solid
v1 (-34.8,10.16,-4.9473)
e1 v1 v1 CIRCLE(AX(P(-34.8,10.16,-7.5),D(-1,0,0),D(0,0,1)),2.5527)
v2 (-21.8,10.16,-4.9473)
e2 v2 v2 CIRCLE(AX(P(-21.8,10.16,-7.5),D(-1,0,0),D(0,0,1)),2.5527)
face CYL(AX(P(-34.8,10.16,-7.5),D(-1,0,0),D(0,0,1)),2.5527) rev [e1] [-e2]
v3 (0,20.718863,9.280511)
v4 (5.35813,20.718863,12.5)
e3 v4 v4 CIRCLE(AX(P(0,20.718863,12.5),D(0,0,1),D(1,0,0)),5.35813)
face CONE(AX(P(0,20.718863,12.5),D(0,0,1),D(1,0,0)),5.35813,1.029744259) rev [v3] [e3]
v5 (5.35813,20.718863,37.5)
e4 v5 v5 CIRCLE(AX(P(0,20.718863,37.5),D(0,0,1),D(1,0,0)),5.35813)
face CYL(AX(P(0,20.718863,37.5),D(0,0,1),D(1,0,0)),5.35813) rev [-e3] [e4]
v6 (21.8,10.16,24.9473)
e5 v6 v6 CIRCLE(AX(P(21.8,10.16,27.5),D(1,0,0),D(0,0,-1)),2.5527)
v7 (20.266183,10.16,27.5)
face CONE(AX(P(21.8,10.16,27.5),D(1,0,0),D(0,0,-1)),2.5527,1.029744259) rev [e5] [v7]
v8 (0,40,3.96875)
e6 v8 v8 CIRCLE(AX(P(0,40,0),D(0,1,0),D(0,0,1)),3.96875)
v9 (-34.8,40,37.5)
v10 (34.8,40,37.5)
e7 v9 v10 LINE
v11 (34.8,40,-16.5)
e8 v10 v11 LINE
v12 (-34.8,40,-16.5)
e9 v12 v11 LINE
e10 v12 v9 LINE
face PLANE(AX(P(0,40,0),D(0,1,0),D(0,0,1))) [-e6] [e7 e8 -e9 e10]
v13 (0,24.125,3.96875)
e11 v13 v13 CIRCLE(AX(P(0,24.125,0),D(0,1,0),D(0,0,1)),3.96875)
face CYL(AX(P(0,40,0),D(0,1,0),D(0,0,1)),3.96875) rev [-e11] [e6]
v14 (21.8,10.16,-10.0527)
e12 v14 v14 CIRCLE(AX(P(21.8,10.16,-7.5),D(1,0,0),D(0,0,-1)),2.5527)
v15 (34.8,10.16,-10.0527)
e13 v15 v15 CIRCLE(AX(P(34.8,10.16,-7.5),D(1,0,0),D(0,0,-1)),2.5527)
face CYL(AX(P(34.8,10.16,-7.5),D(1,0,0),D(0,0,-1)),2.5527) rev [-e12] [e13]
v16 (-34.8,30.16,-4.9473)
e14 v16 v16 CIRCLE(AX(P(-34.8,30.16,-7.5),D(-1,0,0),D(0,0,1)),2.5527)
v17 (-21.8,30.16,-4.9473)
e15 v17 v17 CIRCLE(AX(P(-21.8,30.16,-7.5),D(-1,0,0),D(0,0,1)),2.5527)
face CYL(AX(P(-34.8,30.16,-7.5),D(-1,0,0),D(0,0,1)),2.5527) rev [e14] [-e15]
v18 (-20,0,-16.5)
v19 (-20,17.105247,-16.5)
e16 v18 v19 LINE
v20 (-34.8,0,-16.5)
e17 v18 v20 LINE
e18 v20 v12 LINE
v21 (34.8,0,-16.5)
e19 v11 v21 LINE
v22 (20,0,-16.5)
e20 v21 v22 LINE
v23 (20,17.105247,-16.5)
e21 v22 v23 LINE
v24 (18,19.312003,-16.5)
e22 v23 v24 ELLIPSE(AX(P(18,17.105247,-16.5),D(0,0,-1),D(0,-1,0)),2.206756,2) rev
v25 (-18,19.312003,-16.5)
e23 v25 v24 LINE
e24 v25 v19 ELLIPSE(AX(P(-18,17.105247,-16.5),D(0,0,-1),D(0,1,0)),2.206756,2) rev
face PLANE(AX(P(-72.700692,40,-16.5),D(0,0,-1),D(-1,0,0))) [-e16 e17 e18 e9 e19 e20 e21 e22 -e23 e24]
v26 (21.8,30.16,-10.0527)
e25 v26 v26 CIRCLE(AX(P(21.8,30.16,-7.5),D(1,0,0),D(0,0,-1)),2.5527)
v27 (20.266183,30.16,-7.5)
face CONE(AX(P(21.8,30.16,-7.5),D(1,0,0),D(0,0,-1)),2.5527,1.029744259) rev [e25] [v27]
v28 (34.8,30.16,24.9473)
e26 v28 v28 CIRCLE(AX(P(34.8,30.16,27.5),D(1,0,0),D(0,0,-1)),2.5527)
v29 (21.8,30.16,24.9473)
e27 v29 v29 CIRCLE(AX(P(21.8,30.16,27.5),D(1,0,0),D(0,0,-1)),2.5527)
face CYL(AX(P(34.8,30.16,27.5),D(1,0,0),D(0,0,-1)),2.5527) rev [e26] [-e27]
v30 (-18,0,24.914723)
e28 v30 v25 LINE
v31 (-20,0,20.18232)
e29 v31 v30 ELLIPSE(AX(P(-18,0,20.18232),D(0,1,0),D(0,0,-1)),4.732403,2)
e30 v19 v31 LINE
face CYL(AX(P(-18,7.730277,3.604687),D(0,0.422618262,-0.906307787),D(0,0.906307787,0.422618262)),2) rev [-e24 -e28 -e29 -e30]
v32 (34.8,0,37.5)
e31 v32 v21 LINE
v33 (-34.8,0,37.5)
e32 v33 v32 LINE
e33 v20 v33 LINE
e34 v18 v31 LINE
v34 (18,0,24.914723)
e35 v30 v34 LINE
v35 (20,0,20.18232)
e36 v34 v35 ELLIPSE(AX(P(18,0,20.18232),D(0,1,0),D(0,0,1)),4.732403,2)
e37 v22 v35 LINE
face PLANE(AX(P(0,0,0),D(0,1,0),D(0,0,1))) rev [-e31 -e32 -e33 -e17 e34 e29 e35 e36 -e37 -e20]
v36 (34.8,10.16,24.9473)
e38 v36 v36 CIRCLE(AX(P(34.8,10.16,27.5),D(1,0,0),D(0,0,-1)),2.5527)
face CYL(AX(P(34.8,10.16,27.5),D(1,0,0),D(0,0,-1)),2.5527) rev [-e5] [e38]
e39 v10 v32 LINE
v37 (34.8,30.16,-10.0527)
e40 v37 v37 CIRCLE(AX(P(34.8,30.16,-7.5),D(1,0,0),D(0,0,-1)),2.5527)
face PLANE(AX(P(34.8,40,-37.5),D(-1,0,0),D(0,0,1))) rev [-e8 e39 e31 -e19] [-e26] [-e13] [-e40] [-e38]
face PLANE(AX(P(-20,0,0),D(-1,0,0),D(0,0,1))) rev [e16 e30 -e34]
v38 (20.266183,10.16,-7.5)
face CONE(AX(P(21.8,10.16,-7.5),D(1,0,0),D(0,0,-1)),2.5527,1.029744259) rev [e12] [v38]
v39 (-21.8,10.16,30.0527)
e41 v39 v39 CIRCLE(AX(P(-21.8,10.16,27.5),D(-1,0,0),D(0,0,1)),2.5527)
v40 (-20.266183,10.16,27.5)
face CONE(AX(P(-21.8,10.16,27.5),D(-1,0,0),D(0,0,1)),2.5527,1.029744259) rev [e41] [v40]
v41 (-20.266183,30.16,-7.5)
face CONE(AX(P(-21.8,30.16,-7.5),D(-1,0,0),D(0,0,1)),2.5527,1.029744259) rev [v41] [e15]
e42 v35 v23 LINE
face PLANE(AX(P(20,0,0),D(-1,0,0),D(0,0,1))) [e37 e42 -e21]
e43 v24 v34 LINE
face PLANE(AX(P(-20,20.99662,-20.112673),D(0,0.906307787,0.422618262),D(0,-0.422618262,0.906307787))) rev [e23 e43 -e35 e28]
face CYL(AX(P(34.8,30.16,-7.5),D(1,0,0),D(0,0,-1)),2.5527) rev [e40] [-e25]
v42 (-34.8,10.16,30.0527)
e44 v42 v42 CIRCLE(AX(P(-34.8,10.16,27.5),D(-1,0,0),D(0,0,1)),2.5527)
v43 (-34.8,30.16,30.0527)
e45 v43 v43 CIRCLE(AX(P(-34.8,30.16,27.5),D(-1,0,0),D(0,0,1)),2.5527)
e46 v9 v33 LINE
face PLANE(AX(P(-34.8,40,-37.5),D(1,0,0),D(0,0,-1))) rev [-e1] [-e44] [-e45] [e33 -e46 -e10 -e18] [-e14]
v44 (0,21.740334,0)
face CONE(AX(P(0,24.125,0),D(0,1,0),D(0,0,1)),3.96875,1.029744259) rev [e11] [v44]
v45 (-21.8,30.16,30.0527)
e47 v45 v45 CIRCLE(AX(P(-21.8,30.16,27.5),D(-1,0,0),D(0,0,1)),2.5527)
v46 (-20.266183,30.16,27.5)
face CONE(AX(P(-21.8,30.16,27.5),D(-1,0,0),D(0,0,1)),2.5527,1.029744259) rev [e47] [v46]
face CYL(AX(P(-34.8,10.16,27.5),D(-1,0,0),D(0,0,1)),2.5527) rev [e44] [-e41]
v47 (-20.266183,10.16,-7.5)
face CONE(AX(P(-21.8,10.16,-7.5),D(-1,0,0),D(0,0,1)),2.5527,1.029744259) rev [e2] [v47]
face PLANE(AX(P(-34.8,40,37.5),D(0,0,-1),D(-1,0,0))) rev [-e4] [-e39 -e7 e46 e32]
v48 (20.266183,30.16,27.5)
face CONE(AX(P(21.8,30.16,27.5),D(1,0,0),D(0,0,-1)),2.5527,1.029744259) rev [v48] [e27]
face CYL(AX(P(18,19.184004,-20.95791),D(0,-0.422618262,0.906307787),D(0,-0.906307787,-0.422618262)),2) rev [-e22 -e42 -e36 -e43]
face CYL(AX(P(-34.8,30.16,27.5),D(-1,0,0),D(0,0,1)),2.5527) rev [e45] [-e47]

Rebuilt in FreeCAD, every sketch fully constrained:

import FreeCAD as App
import Part
import Sketcher
from FreeCAD import Vector
Q = App.Units.Quantity


def edges_at(feature, points):
    """Names of the edges that pass closest to the given points."""
    edges = feature.Shape.Edges
    near = lambda p: min(range(len(edges)), key=lambda i: edges[i].distToShape(Part.Vertex(*p))[0])
    return sorted({f"Edge{near(p) + 1}" for p in points})

doc = App.newDocument("Part")
body = doc.addObject("PartDesign::Body", "Body")

# Sketch on XZ plane
sketch1 = body.newObject("Sketcher::SketchObject", "Sketch")
sketch1.AttachmentSupport = (doc.getObject("XZ_Plane"), [""])
sketch1.MapMode = "FlatFace"
sketch1.addGeometry([
    Part.LineSegment(Vector(-34.8, -37.5, 0), Vector(-34.8, 37.5, 0)),
    Part.LineSegment(Vector(-34.8, 37.5, 0), Vector(34.8, 37.5, 0)),
    Part.LineSegment(Vector(34.8, 37.5, 0), Vector(34.8, -37.5, 0)),
    Part.LineSegment(Vector(34.8, -37.5, 0), Vector(-34.8, -37.5, 0)),
], False)
sketch1.addConstraint([
    Sketcher.Constraint("Coincident", 0, 2, 1, 1),
    Sketcher.Constraint("Coincident", 1, 2, 2, 1),
    Sketcher.Constraint("Coincident", 2, 2, 3, 1),
    Sketcher.Constraint("Coincident", 3, 2, 0, 1),
    Sketcher.Constraint("Vertical", 0),
    Sketcher.Constraint("Horizontal", 1),
    Sketcher.Constraint("Vertical", 2),
    Sketcher.Constraint("Horizontal", 3),
    Sketcher.Constraint("Symmetric", 0, 2, 2, 2, -1, 1),
    Sketcher.Constraint("DistanceY", 0, 1, 0, 2, 75.0),
    Sketcher.Constraint("DistanceX", 1, 1, 1, 2, 69.6),
])
pad1 = body.newObject("PartDesign::Pad", "Pad")
pad1.Profile = sketch1
pad1.Length = 40
pad1.Reversed = True

# Sketch on XZ plane
sketch2 = body.newObject("Sketcher::SketchObject", "Sketch001")
sketch2.AttachmentSupport = (doc.getObject("XZ_Plane"), [""])
sketch2.MapMode = "FlatFace"
sketch2.addGeometry([
    Part.LineSegment(Vector(-72.700692, -59.14726, 0), Vector(-72.700692, -16.5, 0)),
    Part.LineSegment(Vector(-72.700692, -16.5, 0), Vector(54.291207, -16.5, 0)),
    Part.LineSegment(Vector(54.291207, -16.5, 0), Vector(54.291207, -59.14726, 0)),
    Part.LineSegment(Vector(54.291207, -59.14726, 0), Vector(-72.700692, -59.14726, 0)),
], False)
sketch2.addConstraint([
    Sketcher.Constraint("Coincident", 0, 2, 1, 1),
    Sketcher.Constraint("Coincident", 1, 2, 2, 1),
    Sketcher.Constraint("Coincident", 2, 2, 3, 1),
    Sketcher.Constraint("Coincident", 3, 2, 0, 1),
    Sketcher.Constraint("Vertical", 0),
    Sketcher.Constraint("Horizontal", 1),
    Sketcher.Constraint("Vertical", 2),
    Sketcher.Constraint("Horizontal", 3),
    Sketcher.Constraint("DistanceY", 0, 2, -1, 1, 16.5),
    Sketcher.Constraint("DistanceX", 1, 1, 1, 2, 126.991899),
    Sketcher.Constraint("DistanceY", 0, 1, 0, 2, 42.64726),
    Sketcher.Constraint("DistanceX", 0, 2, -1, 1, 72.700692),
])
pocket1 = body.newObject("PartDesign::Pocket", "Pocket")
pocket1.Profile = sketch2
pocket1.Type = "ThroughAll"

# Sketch on XZ plane
sketch3 = body.newObject("Sketcher::SketchObject", "Sketch002")
sketch3.AttachmentSupport = (doc.getObject("XZ_Plane"), [""])
sketch3.MapMode = "FlatFace"
sketch3.AttachmentOffset = App.Placement(Vector(0, 0, -40), App.Rotation())
sketch3.addGeometry(Part.Circle(Vector(0, 0, 0), Vector(0, 0, 1), 3.96875), False)
sketch3.addConstraint([
    Sketcher.Constraint("Coincident", 0, 3, -1, 1),
    Sketcher.Constraint("Diameter", 0, 7.9375),
])
doc.recompute()
hole = body.newObject("PartDesign::Hole", "Hole")
hole.Profile = sketch3
hole.ThreadType = "None"
hole.Diameter = 7.9375
hole.DepthType = "Dimension"
hole.Depth = 15.875
hole.DrillPoint = "Angled"
hole.DrillPointAngle = 118
hole.Reversed = True

# Sketch on XZ plane
sketch4 = body.newObject("Sketcher::SketchObject", "Sketch003")
sketch4.AttachmentSupport = (doc.getObject("XZ_Plane"), [""])
sketch4.MapMode = "FlatFace"
sketch4.AttachmentOffset = App.Placement(Vector(0, 0, -30.16), App.Rotation())
sketch4.addGeometry([
    Part.LineSegment(Vector(20.266183, -7.5, 0), Vector(34.8, -7.5, 0)),
    Part.LineSegment(Vector(34.8, -7.5, 0), Vector(34.8, -10.0527, 0)),
    Part.LineSegment(Vector(34.8, -10.0527, 0), Vector(21.8, -10.0527, 0)),
    Part.LineSegment(Vector(21.8, -10.0527, 0), Vector(20.266183, -7.5, 0)),
], False)
sketch4.addGeometry(Part.LineSegment(Vector(34.8, -7.5, 0), Vector(20.266183, -7.5, 0)), True)  # axis
sketch4.addConstraint([
    Sketcher.Constraint("Coincident", 0, 2, 1, 1),
    Sketcher.Constraint("Coincident", 1, 2, 2, 1),
    Sketcher.Constraint("Coincident", 2, 2, 3, 1),
    Sketcher.Constraint("Coincident", 3, 2, 0, 1),
    Sketcher.Constraint("Horizontal", 0),
    Sketcher.Constraint("Vertical", 1),
    Sketcher.Constraint("Horizontal", 2),
    Sketcher.Constraint("Horizontal", 4),
    Sketcher.Constraint("Coincident", 4, 1, 0, 2),
    Sketcher.Constraint("Equal", 0, 4),
    Sketcher.Constraint("DistanceX", 2, 2, 2, 1, 13.0),
    Sketcher.Constraint("Angle", 3, Q("121 deg")),
    Sketcher.Constraint("DistanceX", -1, 1, 0, 2, 34.8),
    Sketcher.Constraint("DistanceY", 0, 2, -1, 1, 7.5),
    Sketcher.Constraint("DistanceY", 1, 2, 1, 1, 2.5527),
])
groove = body.newObject("PartDesign::Groove", "Groove")
groove.Profile = sketch4
groove.ReferenceAxis = (sketch4, ["Axis0"])
groove.Angle = 360
doc.recompute()

linearpattern = body.newObject("PartDesign::LinearPattern", "LinearPattern")
linearpattern.Originals = [groove]
linearpattern.Direction = (doc.getObject("Y_Axis"), [""])
linearpattern.Mode = "offset"
linearpattern.Offset = 20
linearpattern.Occurrences = 2
linearpattern.Reversed = True
body.Tip = linearpattern
doc.recompute()

datumline = body.newObject("PartDesign::Line", "DatumLine")
datumline.Placement = App.Placement(Vector(0, 0, 0), App.Rotation(Vector(0, 0, 1), Vector(0, -0.496138938, 0.868243142)))
linearpattern2 = body.newObject("PartDesign::LinearPattern", "LinearPattern001")
linearpattern2.Originals = [groove]
linearpattern2.Direction = (datumline, [""])
linearpattern2.Mode = "offset"
linearpattern2.Offset = 40.311289
linearpattern2.Occurrences = 2
body.Tip = linearpattern2
doc.recompute()

linearpattern3 = body.newObject("PartDesign::LinearPattern", "LinearPattern002")
linearpattern3.Originals = [groove]
linearpattern3.Direction = (doc.getObject("Z_Axis"), [""])
linearpattern3.Mode = "offset"
linearpattern3.Offset = 35
linearpattern3.Occurrences = 2
body.Tip = linearpattern3
doc.recompute()

mirrored = body.newObject("PartDesign::Mirrored", "Mirrored")
mirrored.Originals = [groove]
mirrored.MirrorPlane = (doc.getObject("YZ_Plane"), [""])
body.Tip = mirrored

# Sketch on XZ plane
sketch5 = body.newObject("Sketcher::SketchObject", "Sketch004")
sketch5.AttachmentSupport = (doc.getObject("XZ_Plane"), [""])
sketch5.MapMode = "FlatFace"
sketch5.AttachmentOffset = App.Placement(Vector(0, 0, -10.16), App.Rotation())
sketch5.addGeometry([
    Part.LineSegment(Vector(-34.8, -7.5, 0), Vector(-20.266183, -7.5, 0)),
    Part.LineSegment(Vector(-20.266183, -7.5, 0), Vector(-21.8, -10.0527, 0)),
    Part.LineSegment(Vector(-21.8, -10.0527, 0), Vector(-34.8, -10.0527, 0)),
    Part.LineSegment(Vector(-34.8, -10.0527, 0), Vector(-34.8, -7.5, 0)),
], False)
sketch5.addGeometry(Part.LineSegment(Vector(-20.266183, -7.5, 0), Vector(-34.8, -7.5, 0)), True)  # axis
sketch5.addConstraint([
    Sketcher.Constraint("Coincident", 0, 2, 1, 1),
    Sketcher.Constraint("Coincident", 1, 2, 2, 1),
    Sketcher.Constraint("Coincident", 2, 2, 3, 1),
    Sketcher.Constraint("Coincident", 3, 2, 0, 1),
    Sketcher.Constraint("Horizontal", 0),
    Sketcher.Constraint("Horizontal", 2),
    Sketcher.Constraint("Vertical", 3),
    Sketcher.Constraint("Horizontal", 4),
    Sketcher.Constraint("Coincident", 4, 1, 0, 2),
    Sketcher.Constraint("Vertical", 2, 2, 4, 2),
    Sketcher.Constraint("DistanceX", 2, 2, 2, 1, 13.0),
    Sketcher.Constraint("Angle", 1, Q("-121 deg")),
    Sketcher.Constraint("DistanceY", 0, 2, -1, 1, 7.5),
    Sketcher.Constraint("DistanceX", 1, 2, -1, 1, 21.8),
    Sketcher.Constraint("DistanceY", 3, 1, 3, 2, 2.5527),
])
groove2 = body.newObject("PartDesign::Groove", "Groove001")
groove2.Profile = sketch5
groove2.ReferenceAxis = (sketch5, ["Axis0"])
groove2.Angle = 360

# Sketch on XZ plane
sketch6 = body.newObject("Sketcher::SketchObject", "Sketch005")
sketch6.AttachmentSupport = (doc.getObject("XZ_Plane"), [""])
sketch6.MapMode = "FlatFace"
sketch6.AttachmentOffset = App.Placement(Vector(0, 0, -10.16), App.Rotation())
sketch6.addGeometry([
    Part.LineSegment(Vector(-34.8, 27.5, 0), Vector(-20.266183, 27.5, 0)),
    Part.LineSegment(Vector(-20.266183, 27.5, 0), Vector(-21.8, 24.9473, 0)),
    Part.LineSegment(Vector(-21.8, 24.9473, 0), Vector(-34.8, 24.9473, 0)),
    Part.LineSegment(Vector(-34.8, 24.9473, 0), Vector(-34.8, 27.5, 0)),
], False)
sketch6.addGeometry(Part.LineSegment(Vector(-20.266183, 27.5, 0), Vector(-34.8, 27.5, 0)), True)  # axis
sketch6.addConstraint([
    Sketcher.Constraint("Coincident", 0, 2, 1, 1),
    Sketcher.Constraint("Coincident", 1, 2, 2, 1),
    Sketcher.Constraint("Coincident", 2, 2, 3, 1),
    Sketcher.Constraint("Coincident", 3, 2, 0, 1),
    Sketcher.Constraint("Horizontal", 0),
    Sketcher.Constraint("Horizontal", 2),
    Sketcher.Constraint("Vertical", 3),
    Sketcher.Constraint("Horizontal", 4),
    Sketcher.Constraint("Coincident", 4, 1, 0, 2),
    Sketcher.Constraint("Vertical", 2, 2, 4, 2),
    Sketcher.Constraint("DistanceX", 2, 2, 2, 1, 13.0),
    Sketcher.Constraint("Angle", 1, Q("-121 deg")),
    Sketcher.Constraint("DistanceY", -1, 1, 0, 2, 27.5),
    Sketcher.Constraint("DistanceX", 1, 2, -1, 1, 21.8),
    Sketcher.Constraint("DistanceY", 3, 1, 3, 2, 2.5527),
])
groove3 = body.newObject("PartDesign::Groove", "Groove002")
groove3.Profile = sketch6
groove3.ReferenceAxis = (sketch6, ["Axis0"])
groove3.Angle = 360

# Sketch on XZ plane
sketch7 = body.newObject("Sketcher::SketchObject", "Sketch006")
sketch7.AttachmentSupport = (doc.getObject("XZ_Plane"), [""])
sketch7.MapMode = "FlatFace"
sketch7.AttachmentOffset = App.Placement(Vector(0, 0, -30.16), App.Rotation())
sketch7.addGeometry([
    Part.LineSegment(Vector(-34.8, 27.5, 0), Vector(-20.266183, 27.5, 0)),
    Part.LineSegment(Vector(-20.266183, 27.5, 0), Vector(-21.8, 24.9473, 0)),
    Part.LineSegment(Vector(-21.8, 24.9473, 0), Vector(-34.8, 24.9473, 0)),
    Part.LineSegment(Vector(-34.8, 24.9473, 0), Vector(-34.8, 27.5, 0)),
], False)
sketch7.addGeometry(Part.LineSegment(Vector(-20.266183, 27.5, 0), Vector(-34.8, 27.5, 0)), True)  # axis
sketch7.addConstraint([
    Sketcher.Constraint("Coincident", 0, 2, 1, 1),
    Sketcher.Constraint("Coincident", 1, 2, 2, 1),
    Sketcher.Constraint("Coincident", 2, 2, 3, 1),
    Sketcher.Constraint("Coincident", 3, 2, 0, 1),
    Sketcher.Constraint("Horizontal", 0),
    Sketcher.Constraint("Horizontal", 2),
    Sketcher.Constraint("Vertical", 3),
    Sketcher.Constraint("Horizontal", 4),
    Sketcher.Constraint("Coincident", 4, 1, 0, 2),
    Sketcher.Constraint("Vertical", 2, 2, 4, 2),
    Sketcher.Constraint("DistanceX", 2, 2, 2, 1, 13.0),
    Sketcher.Constraint("Angle", 1, Q("-121 deg")),
    Sketcher.Constraint("DistanceY", -1, 1, 0, 2, 27.5),
    Sketcher.Constraint("DistanceX", 1, 2, -1, 1, 21.8),
    Sketcher.Constraint("DistanceY", 3, 1, 3, 2, 2.5527),
])
groove4 = body.newObject("PartDesign::Groove", "Groove003")
groove4.Profile = sketch7
groove4.ReferenceAxis = (sketch7, ["Axis0"])
groove4.Angle = 360

# Sketch on YZ plane
sketch8 = body.newObject("Sketcher::SketchObject", "Sketch007")
sketch8.AttachmentSupport = (doc.getObject("YZ_Plane"), [""])
sketch8.MapMode = "FlatFace"
sketch8.addGeometry([
    Part.LineSegment(Vector(20.99662, -20.112673, 0), Vector(-4.00338, 33.5, 0)),
    Part.LineSegment(Vector(-4.00338, 33.5, 0), Vector(-4.00338, -20.112673, 0)),
    Part.LineSegment(Vector(-4.00338, -20.112673, 0), Vector(20.99662, -20.112673, 0)),
], False)
sketch8.addConstraint([
    Sketcher.Constraint("Coincident", 0, 2, 1, 1),
    Sketcher.Constraint("Coincident", 1, 2, 2, 1),
    Sketcher.Constraint("Coincident", 2, 2, 0, 1),
    Sketcher.Constraint("Vertical", 1),
    Sketcher.Constraint("Horizontal", 2),
    Sketcher.Constraint("DistanceX", 2, 1, 2, 2, 25.0),
    Sketcher.Constraint("Angle", 0, Q("115 deg")),
    Sketcher.Constraint("DistanceY", -1, 1, 0, 2, 33.5),
    Sketcher.Constraint("DistanceX", 0, 2, -1, 1, 4.00338),
])
pocket2 = body.newObject("PartDesign::Pocket", "Pocket001")
pocket2.Profile = sketch8
pocket2.Length = 40
pocket2.Midplane = True

# Sketch on XY plane
sketch9 = body.newObject("Sketcher::SketchObject", "Sketch008")
sketch9.AttachmentSupport = (doc.getObject("XY_Plane"), [""])
sketch9.MapMode = "FlatFace"
sketch9.AttachmentOffset = App.Placement(Vector(0, 0, 37.5), App.Rotation())
sketch9.addGeometry(Part.Circle(Vector(0, 20.718863, 0), Vector(0, 0, 1), 5.35813), False)
sketch9.addConstraint([
    Sketcher.Constraint("PointOnObject", 0, 3, -2),
    Sketcher.Constraint("Diameter", 0, 10.71626),
    Sketcher.Constraint("DistanceY", -1, 1, 0, 3, 20.718863),
])
doc.recompute()
hole2 = body.newObject("PartDesign::Hole", "Hole001")
hole2.Profile = sketch9
hole2.ThreadType = "None"
hole2.Diameter = 10.71626
hole2.DepthType = "Dimension"
hole2.Depth = 25
hole2.DrillPoint = "Angled"
hole2.DrillPointAngle = 118
doc.recompute()

fillet = body.newObject("PartDesign::Fillet", "Fillet")
fillet.Base = (hole2, edges_at(hole2, [(-20, 9.656, 4.207), (20, 9.656, 4.207)]))
fillet.Radius = 2

doc.recompute()
